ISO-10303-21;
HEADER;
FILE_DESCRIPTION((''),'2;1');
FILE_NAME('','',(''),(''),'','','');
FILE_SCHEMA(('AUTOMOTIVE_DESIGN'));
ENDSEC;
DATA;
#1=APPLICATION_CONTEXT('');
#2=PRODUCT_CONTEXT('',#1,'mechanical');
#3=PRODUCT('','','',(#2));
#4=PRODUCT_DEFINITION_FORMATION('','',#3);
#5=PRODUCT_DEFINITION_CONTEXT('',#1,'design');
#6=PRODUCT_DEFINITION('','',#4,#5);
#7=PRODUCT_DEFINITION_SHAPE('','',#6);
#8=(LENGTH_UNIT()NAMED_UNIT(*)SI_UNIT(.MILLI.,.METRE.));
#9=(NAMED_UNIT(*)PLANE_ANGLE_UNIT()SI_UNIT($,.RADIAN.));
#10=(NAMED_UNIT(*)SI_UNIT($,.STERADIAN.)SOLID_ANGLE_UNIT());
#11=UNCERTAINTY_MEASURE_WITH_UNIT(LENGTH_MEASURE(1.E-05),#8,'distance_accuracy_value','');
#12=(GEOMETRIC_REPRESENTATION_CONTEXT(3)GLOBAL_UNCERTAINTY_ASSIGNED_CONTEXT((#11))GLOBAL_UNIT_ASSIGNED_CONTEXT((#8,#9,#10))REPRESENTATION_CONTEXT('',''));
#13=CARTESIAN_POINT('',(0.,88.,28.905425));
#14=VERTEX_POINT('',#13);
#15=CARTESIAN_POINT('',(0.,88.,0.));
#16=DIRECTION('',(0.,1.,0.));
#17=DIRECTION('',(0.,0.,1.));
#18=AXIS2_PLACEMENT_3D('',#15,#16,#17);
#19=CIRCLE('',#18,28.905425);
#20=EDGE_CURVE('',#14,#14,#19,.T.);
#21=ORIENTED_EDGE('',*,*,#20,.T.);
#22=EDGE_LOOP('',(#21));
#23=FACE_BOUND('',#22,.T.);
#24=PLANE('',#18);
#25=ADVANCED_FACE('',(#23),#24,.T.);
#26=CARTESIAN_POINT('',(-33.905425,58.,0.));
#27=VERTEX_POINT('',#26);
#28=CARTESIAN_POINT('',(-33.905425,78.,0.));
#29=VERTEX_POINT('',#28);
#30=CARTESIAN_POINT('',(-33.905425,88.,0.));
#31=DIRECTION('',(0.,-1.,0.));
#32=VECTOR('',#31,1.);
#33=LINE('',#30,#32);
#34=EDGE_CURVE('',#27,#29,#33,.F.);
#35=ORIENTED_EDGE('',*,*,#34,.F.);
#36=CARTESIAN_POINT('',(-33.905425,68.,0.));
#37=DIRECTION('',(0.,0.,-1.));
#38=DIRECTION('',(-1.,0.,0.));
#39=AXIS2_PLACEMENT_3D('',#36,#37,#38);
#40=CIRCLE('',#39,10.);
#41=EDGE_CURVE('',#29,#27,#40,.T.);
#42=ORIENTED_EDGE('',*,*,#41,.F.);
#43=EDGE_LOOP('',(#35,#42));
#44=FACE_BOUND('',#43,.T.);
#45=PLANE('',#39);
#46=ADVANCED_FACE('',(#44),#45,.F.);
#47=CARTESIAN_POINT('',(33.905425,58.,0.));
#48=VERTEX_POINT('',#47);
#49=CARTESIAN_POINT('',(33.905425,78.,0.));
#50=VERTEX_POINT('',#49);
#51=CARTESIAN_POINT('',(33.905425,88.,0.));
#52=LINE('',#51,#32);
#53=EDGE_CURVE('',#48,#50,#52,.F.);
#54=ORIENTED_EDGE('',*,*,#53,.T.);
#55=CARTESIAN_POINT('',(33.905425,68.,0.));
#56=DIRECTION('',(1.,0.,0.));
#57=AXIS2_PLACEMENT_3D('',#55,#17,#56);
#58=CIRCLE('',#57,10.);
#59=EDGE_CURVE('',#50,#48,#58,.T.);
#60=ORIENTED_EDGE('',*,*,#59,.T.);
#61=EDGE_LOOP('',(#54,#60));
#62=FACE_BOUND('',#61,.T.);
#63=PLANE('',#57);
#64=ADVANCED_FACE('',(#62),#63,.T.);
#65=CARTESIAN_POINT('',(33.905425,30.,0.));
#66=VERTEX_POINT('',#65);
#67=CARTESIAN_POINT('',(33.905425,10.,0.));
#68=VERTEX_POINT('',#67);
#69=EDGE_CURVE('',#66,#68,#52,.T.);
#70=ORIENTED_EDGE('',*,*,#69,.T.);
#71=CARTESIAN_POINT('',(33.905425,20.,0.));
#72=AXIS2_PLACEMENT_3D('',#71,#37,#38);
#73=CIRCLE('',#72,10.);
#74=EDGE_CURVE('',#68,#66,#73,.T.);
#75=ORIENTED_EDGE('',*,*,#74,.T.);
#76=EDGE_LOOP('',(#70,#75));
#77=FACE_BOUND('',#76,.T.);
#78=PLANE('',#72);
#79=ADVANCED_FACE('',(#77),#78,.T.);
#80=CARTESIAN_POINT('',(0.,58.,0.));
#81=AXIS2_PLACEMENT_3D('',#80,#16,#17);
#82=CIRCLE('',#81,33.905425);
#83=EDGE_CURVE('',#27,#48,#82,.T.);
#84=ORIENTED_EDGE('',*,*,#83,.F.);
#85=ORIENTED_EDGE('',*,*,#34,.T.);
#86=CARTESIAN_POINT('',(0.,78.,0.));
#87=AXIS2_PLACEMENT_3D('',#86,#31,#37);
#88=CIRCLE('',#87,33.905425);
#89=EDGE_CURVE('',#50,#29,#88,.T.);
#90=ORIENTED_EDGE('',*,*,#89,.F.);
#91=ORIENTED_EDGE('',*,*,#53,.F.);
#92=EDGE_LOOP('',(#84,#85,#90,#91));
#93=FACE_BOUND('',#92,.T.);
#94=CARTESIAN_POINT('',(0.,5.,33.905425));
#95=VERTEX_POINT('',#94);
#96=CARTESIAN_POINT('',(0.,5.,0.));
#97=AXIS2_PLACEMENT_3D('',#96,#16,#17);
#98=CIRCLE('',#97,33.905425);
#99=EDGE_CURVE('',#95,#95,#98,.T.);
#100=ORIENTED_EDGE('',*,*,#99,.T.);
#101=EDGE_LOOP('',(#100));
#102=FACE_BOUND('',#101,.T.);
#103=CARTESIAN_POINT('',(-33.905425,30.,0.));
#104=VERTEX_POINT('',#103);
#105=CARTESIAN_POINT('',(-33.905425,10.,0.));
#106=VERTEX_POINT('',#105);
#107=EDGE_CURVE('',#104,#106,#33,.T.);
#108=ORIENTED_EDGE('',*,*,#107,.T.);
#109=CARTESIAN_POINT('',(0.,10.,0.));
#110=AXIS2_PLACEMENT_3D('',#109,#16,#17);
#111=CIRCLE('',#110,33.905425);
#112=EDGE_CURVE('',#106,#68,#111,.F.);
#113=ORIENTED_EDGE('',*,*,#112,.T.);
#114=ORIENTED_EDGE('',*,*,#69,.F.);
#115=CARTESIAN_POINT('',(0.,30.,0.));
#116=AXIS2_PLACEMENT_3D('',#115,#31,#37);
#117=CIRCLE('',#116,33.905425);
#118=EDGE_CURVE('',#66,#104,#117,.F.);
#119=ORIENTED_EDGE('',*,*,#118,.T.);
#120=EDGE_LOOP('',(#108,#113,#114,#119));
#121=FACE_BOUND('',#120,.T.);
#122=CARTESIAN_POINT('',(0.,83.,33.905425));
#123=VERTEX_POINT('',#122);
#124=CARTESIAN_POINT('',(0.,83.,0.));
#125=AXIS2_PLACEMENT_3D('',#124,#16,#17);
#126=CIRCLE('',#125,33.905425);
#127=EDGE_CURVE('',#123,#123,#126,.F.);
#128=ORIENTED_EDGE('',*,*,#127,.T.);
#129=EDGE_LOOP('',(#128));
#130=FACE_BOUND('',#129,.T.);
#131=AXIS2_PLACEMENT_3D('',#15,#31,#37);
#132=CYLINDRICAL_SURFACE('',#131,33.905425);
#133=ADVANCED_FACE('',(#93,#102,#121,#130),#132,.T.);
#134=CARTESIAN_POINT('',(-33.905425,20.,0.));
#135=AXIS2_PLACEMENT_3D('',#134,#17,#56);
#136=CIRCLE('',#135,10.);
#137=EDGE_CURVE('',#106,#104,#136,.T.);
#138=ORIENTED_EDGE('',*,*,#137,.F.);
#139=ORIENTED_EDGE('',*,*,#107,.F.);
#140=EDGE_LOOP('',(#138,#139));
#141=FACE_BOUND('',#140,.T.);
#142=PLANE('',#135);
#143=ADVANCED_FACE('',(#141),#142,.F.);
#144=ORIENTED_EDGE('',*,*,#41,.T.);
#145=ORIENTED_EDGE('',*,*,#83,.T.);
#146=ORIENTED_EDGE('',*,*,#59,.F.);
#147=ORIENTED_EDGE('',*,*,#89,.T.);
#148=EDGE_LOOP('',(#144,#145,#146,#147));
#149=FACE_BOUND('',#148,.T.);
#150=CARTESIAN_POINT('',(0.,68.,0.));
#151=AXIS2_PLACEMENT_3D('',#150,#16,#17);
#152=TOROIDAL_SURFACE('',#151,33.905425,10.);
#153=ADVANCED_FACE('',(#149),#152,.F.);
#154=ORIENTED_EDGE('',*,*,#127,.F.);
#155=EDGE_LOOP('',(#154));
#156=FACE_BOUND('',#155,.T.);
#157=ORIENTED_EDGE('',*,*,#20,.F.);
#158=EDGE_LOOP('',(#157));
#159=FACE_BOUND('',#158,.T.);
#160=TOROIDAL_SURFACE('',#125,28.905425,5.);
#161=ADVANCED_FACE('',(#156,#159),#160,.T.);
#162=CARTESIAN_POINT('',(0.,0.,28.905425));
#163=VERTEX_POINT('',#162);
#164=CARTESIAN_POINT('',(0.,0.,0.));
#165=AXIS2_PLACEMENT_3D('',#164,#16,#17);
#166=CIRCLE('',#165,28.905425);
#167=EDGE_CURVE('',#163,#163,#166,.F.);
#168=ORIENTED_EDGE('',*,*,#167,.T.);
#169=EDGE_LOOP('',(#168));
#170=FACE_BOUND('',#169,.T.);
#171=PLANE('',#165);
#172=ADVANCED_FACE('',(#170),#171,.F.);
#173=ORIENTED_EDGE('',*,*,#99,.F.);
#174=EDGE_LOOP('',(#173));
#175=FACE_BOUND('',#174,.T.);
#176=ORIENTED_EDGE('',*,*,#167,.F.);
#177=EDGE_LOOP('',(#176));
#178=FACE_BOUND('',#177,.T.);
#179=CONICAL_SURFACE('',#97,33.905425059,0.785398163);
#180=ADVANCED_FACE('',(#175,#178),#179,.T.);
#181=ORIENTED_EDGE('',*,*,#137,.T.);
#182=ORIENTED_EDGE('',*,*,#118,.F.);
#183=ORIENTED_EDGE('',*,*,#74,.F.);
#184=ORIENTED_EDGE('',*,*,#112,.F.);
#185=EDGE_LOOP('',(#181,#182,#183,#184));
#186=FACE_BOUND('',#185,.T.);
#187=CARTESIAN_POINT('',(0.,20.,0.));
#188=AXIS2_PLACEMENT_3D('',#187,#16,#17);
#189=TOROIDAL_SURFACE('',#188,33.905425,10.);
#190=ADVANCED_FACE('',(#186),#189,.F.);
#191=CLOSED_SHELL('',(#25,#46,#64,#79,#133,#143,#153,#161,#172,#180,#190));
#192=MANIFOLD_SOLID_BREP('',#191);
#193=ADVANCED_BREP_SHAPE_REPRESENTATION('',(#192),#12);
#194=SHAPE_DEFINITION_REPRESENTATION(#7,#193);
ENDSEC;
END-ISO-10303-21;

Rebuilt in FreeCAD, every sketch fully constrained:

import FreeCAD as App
import Part
import Sketcher
from FreeCAD import Vector


def edges_at(feature, points):
    """Names of the edges that pass closest to the given points."""
    edges = feature.Shape.Edges
    near = lambda p: min(range(len(edges)), key=lambda i: edges[i].distToShape(Part.Vertex(*p))[0])
    return sorted({f"Edge{near(p) + 1}" for p in points})

doc = App.newDocument("Part")
params = doc.addObject("Spreadsheet::Sheet", "Params")
for row, (alias, value) in enumerate([
    ("pad1_length", "88 mm"),
    ("sketch2_diameter", "20 mm"),
    ("groove_angle", "180 deg"),
    ("fillet_radius", "5 mm"),
    ("chamfer_size", "5 mm"),
], start=1):
    params.set(f"A{row}", alias)
    params.set(f"B{row}", "=" + value)
    params.setAlias(f"B{row}", alias)

body = doc.addObject("PartDesign::Body", "Body")

# Sketch on XZ plane
sketch1 = doc.addObject("Sketcher::SketchObject", "Sketch")
body.addObject(sketch1)
sketch1.AttachmentSupport = (doc.XZ_Plane, [""])
sketch1.MapMode = "FlatFace"
sketch1.addGeometry(Part.Circle(Vector(0, 0, 0), Vector(0, 0, 1), 33.905425), False)
sketch1.addConstraint([
    Sketcher.Constraint("Coincident", 0, 3, -1, 1),
    Sketcher.Constraint("Diameter", 0, 67.81085),
])
pad1 = doc.addObject("PartDesign::Pad", "Pad")
body.addObject(pad1)
pad1.Profile = sketch1
pad1.setExpression("Length", "Params.pad1_length")
pad1.Reversed = True

# Sketch on XY plane
sketch2 = doc.addObject("Sketcher::SketchObject", "Sketch001")
body.addObject(sketch2)
sketch2.AttachmentSupport = (doc.XY_Plane, [""])
sketch2.MapMode = "FlatFace"
sketch2.addGeometry([
    Part.Circle(Vector(33.905425, 68, 0), Vector(0, 0, 1), 10),
    Part.Circle(Vector(-33.905425, 20, 0), Vector(0, 0, 1), 10),
], False)
sketch2.addConstraint([
    Sketcher.Constraint("Equal", 0, 1),
    Sketcher.Constraint("Diameter", 0, 20.0),
    Sketcher.Constraint("DistanceY", -1, 1, 0, 3, 68.0),
    Sketcher.Constraint("DistanceY", -1, 1, 1, 3, 20.0),
    Sketcher.Constraint("DistanceX", 1, 3, 0, 3, 67.81085),
    Sketcher.Constraint("DistanceX", -1, 1, 0, 3, 33.905425),
])
sketch2.setExpression("Constraints[1]", "Params.sketch2_diameter")
groove = doc.addObject("PartDesign::Groove", "Groove")
body.addObject(groove)
groove.Profile = sketch2
groove.ReferenceAxis = (sketch2, ["V_Axis"])
groove.setExpression("Angle", "Params.groove_angle")
groove.Reversed = True
doc.recompute()

fillet = doc.addObject("PartDesign::Fillet", "Fillet")
body.addObject(fillet)
fillet.Base = (groove, edges_at(groove, [(0, 88, -33.905)]))
fillet.setExpression("Radius", "Params.fillet_radius")
doc.recompute()

chamfer = doc.addObject("PartDesign::Chamfer", "Chamfer")
body.addObject(chamfer)
chamfer.Base = (fillet, edges_at(fillet, [(0, 0, -33.905)]))
chamfer.setExpression("Size", "Params.chamfer_size")

doc.recompute()
